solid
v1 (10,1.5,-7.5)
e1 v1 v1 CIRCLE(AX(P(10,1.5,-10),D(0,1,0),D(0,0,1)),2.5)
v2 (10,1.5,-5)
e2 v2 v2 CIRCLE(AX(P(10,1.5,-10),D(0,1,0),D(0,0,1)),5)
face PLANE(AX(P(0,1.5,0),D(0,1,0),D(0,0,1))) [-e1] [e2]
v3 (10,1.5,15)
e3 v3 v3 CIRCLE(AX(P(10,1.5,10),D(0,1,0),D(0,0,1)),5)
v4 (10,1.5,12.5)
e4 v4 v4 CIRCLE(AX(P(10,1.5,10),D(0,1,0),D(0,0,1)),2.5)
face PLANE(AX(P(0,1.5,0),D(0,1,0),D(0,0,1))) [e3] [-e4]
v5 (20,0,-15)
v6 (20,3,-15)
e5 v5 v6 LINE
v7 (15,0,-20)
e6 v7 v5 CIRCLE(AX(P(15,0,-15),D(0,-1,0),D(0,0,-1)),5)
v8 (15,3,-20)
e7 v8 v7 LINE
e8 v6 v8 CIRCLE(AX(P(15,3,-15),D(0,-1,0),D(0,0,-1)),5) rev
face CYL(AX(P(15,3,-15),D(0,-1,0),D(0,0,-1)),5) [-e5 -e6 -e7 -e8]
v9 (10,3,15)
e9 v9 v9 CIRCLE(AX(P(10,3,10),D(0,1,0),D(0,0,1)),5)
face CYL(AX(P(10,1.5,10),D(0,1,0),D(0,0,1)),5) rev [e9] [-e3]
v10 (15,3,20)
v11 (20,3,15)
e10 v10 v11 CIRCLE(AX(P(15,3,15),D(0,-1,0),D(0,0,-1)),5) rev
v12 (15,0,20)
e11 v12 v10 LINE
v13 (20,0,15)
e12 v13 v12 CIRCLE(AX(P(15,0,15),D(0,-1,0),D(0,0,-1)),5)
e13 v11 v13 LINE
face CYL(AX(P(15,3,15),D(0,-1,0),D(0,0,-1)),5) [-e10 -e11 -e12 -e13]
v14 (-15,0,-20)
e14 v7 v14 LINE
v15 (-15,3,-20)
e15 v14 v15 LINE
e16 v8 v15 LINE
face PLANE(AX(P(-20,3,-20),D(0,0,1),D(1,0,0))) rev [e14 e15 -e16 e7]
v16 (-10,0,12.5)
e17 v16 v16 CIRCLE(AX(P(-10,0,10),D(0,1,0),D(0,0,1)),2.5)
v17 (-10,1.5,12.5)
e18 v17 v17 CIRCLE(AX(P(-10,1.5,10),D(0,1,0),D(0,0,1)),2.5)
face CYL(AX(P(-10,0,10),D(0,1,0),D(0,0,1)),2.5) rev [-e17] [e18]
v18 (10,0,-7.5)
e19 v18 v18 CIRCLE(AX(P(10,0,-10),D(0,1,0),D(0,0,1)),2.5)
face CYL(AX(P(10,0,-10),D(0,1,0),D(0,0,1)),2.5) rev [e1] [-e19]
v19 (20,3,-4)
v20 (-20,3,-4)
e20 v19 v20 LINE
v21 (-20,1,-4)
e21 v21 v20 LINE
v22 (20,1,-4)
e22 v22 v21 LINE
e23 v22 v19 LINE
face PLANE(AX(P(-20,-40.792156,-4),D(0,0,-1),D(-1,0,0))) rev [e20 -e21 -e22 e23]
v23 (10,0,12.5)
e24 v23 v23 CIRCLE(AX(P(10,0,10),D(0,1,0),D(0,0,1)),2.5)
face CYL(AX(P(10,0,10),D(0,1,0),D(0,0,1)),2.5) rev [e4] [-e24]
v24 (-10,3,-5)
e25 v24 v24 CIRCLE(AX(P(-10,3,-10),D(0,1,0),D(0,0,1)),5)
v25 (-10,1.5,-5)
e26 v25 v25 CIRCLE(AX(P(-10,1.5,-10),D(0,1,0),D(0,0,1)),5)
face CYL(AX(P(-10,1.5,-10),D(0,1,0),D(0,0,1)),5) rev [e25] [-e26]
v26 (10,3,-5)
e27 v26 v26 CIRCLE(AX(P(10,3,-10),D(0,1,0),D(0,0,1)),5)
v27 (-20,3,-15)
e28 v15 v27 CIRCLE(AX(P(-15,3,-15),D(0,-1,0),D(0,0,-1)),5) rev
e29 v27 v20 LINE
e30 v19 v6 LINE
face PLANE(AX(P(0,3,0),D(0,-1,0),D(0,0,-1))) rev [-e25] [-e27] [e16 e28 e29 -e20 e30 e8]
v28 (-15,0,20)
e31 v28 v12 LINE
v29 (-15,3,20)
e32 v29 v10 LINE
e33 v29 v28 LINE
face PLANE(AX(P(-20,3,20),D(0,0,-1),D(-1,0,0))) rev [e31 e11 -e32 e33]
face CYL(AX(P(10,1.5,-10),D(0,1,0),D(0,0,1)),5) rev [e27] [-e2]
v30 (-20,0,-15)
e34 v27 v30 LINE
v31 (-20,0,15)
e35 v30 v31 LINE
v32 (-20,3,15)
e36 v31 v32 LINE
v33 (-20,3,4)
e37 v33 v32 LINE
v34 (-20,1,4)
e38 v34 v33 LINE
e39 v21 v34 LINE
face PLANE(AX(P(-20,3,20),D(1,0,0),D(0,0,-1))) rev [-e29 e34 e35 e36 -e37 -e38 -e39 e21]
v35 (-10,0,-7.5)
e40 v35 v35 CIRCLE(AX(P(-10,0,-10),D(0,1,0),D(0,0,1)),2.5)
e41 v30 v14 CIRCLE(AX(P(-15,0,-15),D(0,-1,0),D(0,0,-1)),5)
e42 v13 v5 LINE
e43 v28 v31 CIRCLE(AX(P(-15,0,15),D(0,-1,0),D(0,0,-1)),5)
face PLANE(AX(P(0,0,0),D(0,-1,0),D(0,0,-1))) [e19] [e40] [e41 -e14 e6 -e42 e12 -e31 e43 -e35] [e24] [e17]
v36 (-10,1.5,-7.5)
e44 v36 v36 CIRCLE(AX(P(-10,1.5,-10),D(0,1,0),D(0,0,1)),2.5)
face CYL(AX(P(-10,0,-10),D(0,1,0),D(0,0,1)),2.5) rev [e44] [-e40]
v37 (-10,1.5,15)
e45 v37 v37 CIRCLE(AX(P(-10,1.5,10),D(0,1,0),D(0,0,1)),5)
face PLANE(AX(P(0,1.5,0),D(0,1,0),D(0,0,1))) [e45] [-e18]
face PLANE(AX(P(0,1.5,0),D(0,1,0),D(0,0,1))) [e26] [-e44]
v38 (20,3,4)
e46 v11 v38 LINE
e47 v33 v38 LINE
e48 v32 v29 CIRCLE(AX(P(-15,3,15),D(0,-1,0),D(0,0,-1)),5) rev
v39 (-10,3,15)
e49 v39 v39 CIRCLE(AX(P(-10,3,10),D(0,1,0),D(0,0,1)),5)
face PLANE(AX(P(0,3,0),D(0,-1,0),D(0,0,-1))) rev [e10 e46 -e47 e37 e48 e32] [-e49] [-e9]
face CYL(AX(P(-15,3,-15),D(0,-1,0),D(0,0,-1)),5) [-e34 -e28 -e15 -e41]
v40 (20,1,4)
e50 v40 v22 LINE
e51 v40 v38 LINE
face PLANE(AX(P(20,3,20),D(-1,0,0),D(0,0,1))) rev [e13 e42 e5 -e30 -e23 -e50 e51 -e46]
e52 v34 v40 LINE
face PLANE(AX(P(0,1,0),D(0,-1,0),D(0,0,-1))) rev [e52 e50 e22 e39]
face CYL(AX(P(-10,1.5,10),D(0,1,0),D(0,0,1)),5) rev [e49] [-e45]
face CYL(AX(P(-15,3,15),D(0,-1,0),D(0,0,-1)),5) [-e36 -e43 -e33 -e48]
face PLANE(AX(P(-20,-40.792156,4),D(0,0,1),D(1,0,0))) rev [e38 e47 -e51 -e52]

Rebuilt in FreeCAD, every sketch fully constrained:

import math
import FreeCAD as App
import Part
import Sketcher


def edges_at(feature, points):
    """Names of the edges that pass closest to the given points."""
    edges = feature.Shape.Edges
    near = lambda p: min(range(len(edges)), key=lambda i: edges[i].distToShape(Part.Vertex(*p))[0])
    return sorted({f"Edge{near(p) + 1}" for p in points})


def add_polygon(sketch, points):
    """Adds a closed chain of lines whose ends are joined by coincident constraints."""
    first, n = sketch.GeometryCount, len(points)
    for a, b in zip(points, points[1:] + points[:1]):
        sketch.addGeometry(Part.LineSegment(App.Vector(*a, 0), App.Vector(*b, 0)), False)
    for i in range(n):
        sketch.addConstraint(Sketcher.Constraint("Coincident", first + i, 2, first + (i + 1) % n, 1))

doc = App.newDocument("Part")
body = doc.addObject("PartDesign::Body", "Body")

# Sketch on XZ plane
sketch1 = body.newObject("Sketcher::SketchObject", "Sketch")
sketch1.AttachmentSupport = (doc.getObject("XZ_Plane"), [""])
sketch1.MapMode = "FlatFace"
add_polygon(sketch1, [(-20, -20), (-20, 20), (20, 20), (20, -20)])  # lines 0-3
sketch1.addConstraint([
    Sketcher.Constraint("Vertical", 0),
    Sketcher.Constraint("Horizontal", 1),
    Sketcher.Constraint("Vertical", 2),
    Sketcher.Constraint("Horizontal", 3),
    Sketcher.Constraint("Symmetric", 0, 2, 2, 2, -1, 1),
    Sketcher.Constraint("Equal", 3, 0),
    Sketcher.Constraint("DistanceX", 1, 1, 1, 2, 40.0),
])
pad1 = body.newObject("PartDesign::Pad", "Pad")
pad1.Profile = sketch1
pad1.Length = 3
pad1.Reversed = True

# Sketch on XZ plane
sketch2 = body.newObject("Sketcher::SketchObject", "Sketch001")
sketch2.AttachmentSupport = (doc.getObject("XZ_Plane"), [""])
sketch2.MapMode = "FlatFace"
sketch2.AttachmentOffset = App.Placement(App.Vector(0, 0, -3), App.Rotation())
sketch2.addGeometry([
    Part.ArcOfCircle(Part.Circle(App.Vector(-10, -10, 0), App.Vector(0, 0, 1), 5), math.radians(90), math.radians(360)),  # 0
    Part.ArcOfCircle(Part.Circle(App.Vector(-10, -10, 0), App.Vector(0, 0, 1), 5), math.radians(0), math.radians(90)),  # 1
    Part.ArcOfCircle(Part.Circle(App.Vector(10, -10, 0), App.Vector(0, 0, 1), 5), math.radians(90), math.radians(180)),  # 2
    Part.ArcOfCircle(Part.Circle(App.Vector(10, -10, 0), App.Vector(0, 0, 1), 5), math.radians(0), math.radians(90)),  # 3
    Part.ArcOfCircle(Part.Circle(App.Vector(10, -10, 0), App.Vector(0, 0, 1), 5), math.radians(180), math.radians(360)),  # 4
    Part.ArcOfCircle(Part.Circle(App.Vector(-10, 10, 0), App.Vector(0, 0, 1), 5), math.radians(-90), math.radians(0)),  # 5
    Part.ArcOfCircle(Part.Circle(App.Vector(-10, 10, 0), App.Vector(0, 0, 1), 5), math.radians(0), math.radians(270)),  # 6
    Part.ArcOfCircle(Part.Circle(App.Vector(10, 10, 0), App.Vector(0, 0, 1), 5), math.radians(180), math.radians(270)),  # 7
    Part.ArcOfCircle(Part.Circle(App.Vector(10, 10, 0), App.Vector(0, 0, 1), 5), math.radians(0), math.radians(180)),  # 8
    Part.ArcOfCircle(Part.Circle(App.Vector(10, 10, 0), App.Vector(0, 0, 1), 5), math.radians(-90), math.radians(0)),  # 9
], False)
sketch2.addConstraint([
    Sketcher.Constraint("Tangent", 0, 1, 1, 2),
    Sketcher.Constraint("Coincident", 1, 1, 0, 2),
    Sketcher.Constraint("Tangent", 2, 1, 3, 2),
    Sketcher.Constraint("Tangent", 3, 1, 4, 2),
    Sketcher.Constraint("Tangent", 4, 1, 2, 2),
    Sketcher.Constraint("Tangent", 5, 1, 6, 2),
    Sketcher.Constraint("Coincident", 6, 1, 5, 2),
    Sketcher.Constraint("Tangent", 7, 1, 8, 2),
    Sketcher.Constraint("Tangent", 8, 1, 9, 2),
    Sketcher.Constraint("Tangent", 9, 1, 7, 2),
    Sketcher.Constraint("Equal", 1, 2),
    Sketcher.Constraint("Equal", 4, 5),
    Sketcher.Constraint("Equal", 6, 7),
    Sketcher.Constraint("Symmetric", 2, 3, 5, 3, -1, 1),
    Sketcher.Constraint("Symmetric", 0, 3, 7, 3, -1, 1),
    Sketcher.Constraint("Symmetric", 0, 3, 2, 3, -2),
    Sketcher.Constraint("Horizontal", 4, 3, 1, 1),
    Sketcher.Constraint("Horizontal", 1, 1, 3, 1),
    Sketcher.Constraint("Horizontal", 3, 1, 4, 1),
    Sketcher.Constraint("Horizontal", 9, 3, 6, 1),
    Sketcher.Constraint("Horizontal", 6, 1, 7, 1),
    Sketcher.Constraint("Horizontal", 7, 1, 8, 1),
    Sketcher.Constraint("Vertical", 6, 3, 0, 1),
    Sketcher.Constraint("Vertical", 9, 3, 2, 1),
    Sketcher.Constraint("Vertical", 0, 1, 5, 1),
    Sketcher.Constraint("Vertical", 2, 1, 9, 1),
    Sketcher.Constraint("Radius", 0, 5.0),
    Sketcher.Constraint("DistanceX", 0, 3, -1, 1, 10.0),
    Sketcher.Constraint("DistanceY", 0, 3, -1, 1, 10.0),
])
pocket1 = body.newObject("PartDesign::Pocket", "Pocket")
pocket1.Profile = sketch2
pocket1.Length = 1.5
pocket1.Reversed = True

# Sketch on XZ plane
sketch3 = body.newObject("Sketcher::SketchObject", "Sketch002")
sketch3.AttachmentSupport = (doc.getObject("XZ_Plane"), [""])
sketch3.MapMode = "FlatFace"
sketch3.AttachmentOffset = App.Placement(App.Vector(0, 0, -1.5), App.Rotation())
sketch3.addGeometry([
    Part.Circle(App.Vector(-10, -10, 0), App.Vector(0, 0, 1), 2.5),
    Part.Circle(App.Vector(10, -10, 0), App.Vector(0, 0, 1), 2.5),
    Part.Circle(App.Vector(-10, 10, 0), App.Vector(0, 0, 1), 2.5),
    Part.Circle(App.Vector(10, 10, 0), App.Vector(0, 0, 1), 2.5),
], False)
sketch3.addConstraint([
    Sketcher.Constraint("Equal", 0, 1),
    Sketcher.Constraint("Equal", 1, 2),
    Sketcher.Constraint("Equal", 2, 3),
    Sketcher.Constraint("Symmetric", 1, 3, 2, 3, -1, 1),
    Sketcher.Constraint("Symmetric", 0, 3, 3, 3, -1, 1),
    Sketcher.Constraint("Symmetric", 0, 3, 1, 3, -2),
    Sketcher.Constraint("Diameter", 0, 5.0),
    Sketcher.Constraint("DistanceX", 0, 3, -1, 1, 10.0),
    Sketcher.Constraint("DistanceY", 0, 3, -1, 1, 10.0),
])
pocket2 = body.newObject("PartDesign::Pocket", "Pocket001")
pocket2.Profile = sketch3
pocket2.Type = "ThroughAll"
pocket2.Reversed = True
doc.recompute()

fillet = body.newObject("PartDesign::Fillet", "Fillet")
fillet.Base = (pocket2, edges_at(pocket2, [
    (20, 1.5, 20),
    (-20, 1.5, 20),
    (-20, 1.5, -20),
    (20, 1.5, -20),
]))
fillet.Radius = 5

# Sketch on XZ plane
sketch4 = body.newObject("Sketcher::SketchObject", "Sketch003")
sketch4.AttachmentSupport = (doc.getObject("XZ_Plane"), [""])
sketch4.MapMode = "FlatFace"
sketch4.AttachmentOffset = App.Placement(App.Vector(0, 0, -3), App.Rotation())
add_polygon(sketch4, [(-20, -4), (-20, 4), (20, 4), (20, -4)])  # lines 0-3
sketch4.addConstraint([
    Sketcher.Constraint("Vertical", 0),
    Sketcher.Constraint("Horizontal", 1),
    Sketcher.Constraint("Vertical", 2),
    Sketcher.Constraint("Horizontal", 3),
    Sketcher.Constraint("Symmetric", 0, 2, 2, 2, -1, 1),
    Sketcher.Constraint("DistanceX", 1, 1, 1, 2, 40.0),
    Sketcher.Constraint("DistanceY", 0, 1, 0, 2, 8.0),
])
pocket3 = body.newObject("PartDesign::Pocket", "Pocket002")
pocket3.Profile = sketch4
pocket3.Length = 2
pocket3.Reversed = True

doc.recompute()
